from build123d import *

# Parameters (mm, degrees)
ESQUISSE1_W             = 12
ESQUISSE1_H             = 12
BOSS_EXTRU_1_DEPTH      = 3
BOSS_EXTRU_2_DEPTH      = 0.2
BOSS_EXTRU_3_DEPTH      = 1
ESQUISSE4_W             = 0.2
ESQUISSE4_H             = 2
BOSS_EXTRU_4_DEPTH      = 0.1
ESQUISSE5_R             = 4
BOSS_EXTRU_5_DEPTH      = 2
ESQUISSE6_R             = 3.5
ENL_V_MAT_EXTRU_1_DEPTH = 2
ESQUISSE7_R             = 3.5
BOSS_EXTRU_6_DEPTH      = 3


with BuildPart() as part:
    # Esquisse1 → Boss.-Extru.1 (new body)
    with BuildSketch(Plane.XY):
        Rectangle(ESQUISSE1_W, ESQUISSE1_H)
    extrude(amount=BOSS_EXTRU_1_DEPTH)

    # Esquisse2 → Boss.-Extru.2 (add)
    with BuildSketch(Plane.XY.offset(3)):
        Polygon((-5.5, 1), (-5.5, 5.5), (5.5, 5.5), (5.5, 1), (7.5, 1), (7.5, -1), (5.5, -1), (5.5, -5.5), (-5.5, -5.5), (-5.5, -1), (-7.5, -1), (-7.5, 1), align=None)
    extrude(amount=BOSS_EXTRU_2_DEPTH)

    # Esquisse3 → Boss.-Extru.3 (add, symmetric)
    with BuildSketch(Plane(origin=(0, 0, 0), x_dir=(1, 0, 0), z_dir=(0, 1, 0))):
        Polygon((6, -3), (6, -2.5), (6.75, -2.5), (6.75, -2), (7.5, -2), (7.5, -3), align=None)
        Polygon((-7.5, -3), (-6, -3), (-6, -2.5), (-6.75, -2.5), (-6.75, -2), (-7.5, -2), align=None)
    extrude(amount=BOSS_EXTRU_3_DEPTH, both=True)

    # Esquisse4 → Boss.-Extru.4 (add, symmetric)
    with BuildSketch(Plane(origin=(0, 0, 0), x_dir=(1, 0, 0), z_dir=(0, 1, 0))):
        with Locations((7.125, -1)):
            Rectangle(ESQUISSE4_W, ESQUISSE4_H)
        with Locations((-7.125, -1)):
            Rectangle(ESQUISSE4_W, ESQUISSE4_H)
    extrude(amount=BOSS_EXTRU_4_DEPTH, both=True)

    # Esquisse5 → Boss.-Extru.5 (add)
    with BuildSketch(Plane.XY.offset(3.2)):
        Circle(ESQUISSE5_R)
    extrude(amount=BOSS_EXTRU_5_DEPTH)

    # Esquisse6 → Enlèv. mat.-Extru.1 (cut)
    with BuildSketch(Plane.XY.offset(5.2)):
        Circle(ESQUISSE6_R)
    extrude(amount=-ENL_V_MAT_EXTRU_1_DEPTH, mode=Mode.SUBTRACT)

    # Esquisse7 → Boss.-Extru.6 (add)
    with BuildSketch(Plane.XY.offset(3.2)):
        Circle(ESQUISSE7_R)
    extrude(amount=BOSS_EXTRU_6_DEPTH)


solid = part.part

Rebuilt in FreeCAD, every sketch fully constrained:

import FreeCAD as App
import Part
import Sketcher
from FreeCAD import Vector
Q = App.Units.Quantity

doc = App.newDocument("Part")
params = doc.addObject("Spreadsheet::Sheet", "Params")
for row, (alias, value) in enumerate([
    ("sketch1_width", "12 mm"),
    ("pad1_length", "3 mm"),
    ("sketch2_width", "2 mm"),
    ("sketch2_width2", "11 mm"),
    ("sketch2_height", "4.5 mm"),
    ("pad2_length", "0.2 mm"),
    ("sketch3_height", "1 mm"),
    ("sketch3_width", "1.5 mm"),
    ("pad3_length", "2 mm"),
    ("sketch4_height", "2 mm"),
    ("sketch4_width", "0.2 mm"),
    ("pad4_length", "0.2 mm"),
    ("sketch5_diameter", "8 mm"),
    ("pad5_length", "2 mm"),
    ("sketch6_diameter", "7 mm"),
    ("pocket1_length", "2 mm"),
    ("sketch7_diameter", "7 mm"),
    ("pad6_length", "3 mm"),
], start=1):
    params.set(f"A{row}", alias)
    params.set(f"B{row}", "=" + value)
    params.setAlias(f"B{row}", alias)

body = doc.addObject("PartDesign::Body", "Body")

sketch1 = body.newObject("Sketcher::SketchObject", "Sketch")
sketch1.AttachmentSupport = (doc.getObject("XY_Plane"), [""])
sketch1.MapMode = "FlatFace"
sketch1.addGeometry([
    Part.LineSegment(Vector(-6, 6, 0), Vector(-6, -6, 0)),
    Part.LineSegment(Vector(-6, -6, 0), Vector(6, -6, 0)),
    Part.LineSegment(Vector(6, -6, 0), Vector(6, 6, 0)),
    Part.LineSegment(Vector(6, 6, 0), Vector(-6, 6, 0)),
], False)
sketch1.addConstraint([
    Sketcher.Constraint("Coincident", 0, 2, 1, 1),
    Sketcher.Constraint("Coincident", 1, 2, 2, 1),
    Sketcher.Constraint("Coincident", 2, 2, 3, 1),
    Sketcher.Constraint("Coincident", 3, 2, 0, 1),
    Sketcher.Constraint("Vertical", 0),
    Sketcher.Constraint("Horizontal", 1),
    Sketcher.Constraint("Vertical", 2),
    Sketcher.Constraint("Horizontal", 3),
    Sketcher.Constraint("Symmetric", 0, 2, 2, 2, -1, 1),
    Sketcher.Constraint("Equal", 3, 0),
    Sketcher.Constraint("DistanceX", 1, 1, 1, 2, Q("12 mm")),
])
sketch1.setExpression("Constraints[10]", "Params.sketch1_width")
pad1 = body.newObject("PartDesign::Pad", "Pad")
pad1.Profile = sketch1
pad1.setExpression("Length", "Params.pad1_length")

sketch2 = body.newObject("Sketcher::SketchObject", "Sketch001")
sketch2.AttachmentSupport = (doc.getObject("XY_Plane"), [""])
sketch2.MapMode = "FlatFace"
sketch2.AttachmentOffset = App.Placement(Vector(0, 0, 3), App.Rotation())
sketch2.addGeometry([
    Part.LineSegment(Vector(-5.5, 5.5, 0), Vector(-5.5, 1, 0)),
    Part.LineSegment(Vector(-5.5, 1, 0), Vector(-7.5, 1, 0)),
    Part.LineSegment(Vector(-7.5, 1, 0), Vector(-7.5, -1, 0)),
    Part.LineSegment(Vector(-7.5, -1, 0), Vector(-5.5, -1, 0)),
    Part.LineSegment(Vector(-5.5, -1, 0), Vector(-5.5, -5.5, 0)),
    Part.LineSegment(Vector(-5.5, -5.5, 0), Vector(5.5, -5.5, 0)),
    Part.LineSegment(Vector(5.5, -5.5, 0), Vector(5.5, -1, 0)),
    Part.LineSegment(Vector(5.5, -1, 0), Vector(7.5, -1, 0)),
    Part.LineSegment(Vector(7.5, -1, 0), Vector(7.5, 1, 0)),
    Part.LineSegment(Vector(7.5, 1, 0), Vector(5.5, 1, 0)),
    Part.LineSegment(Vector(5.5, 1, 0), Vector(5.5, 5.5, 0)),
    Part.LineSegment(Vector(5.5, 5.5, 0), Vector(-5.5, 5.5, 0)),
], False)
sketch2.addConstraint([
    Sketcher.Constraint("Coincident", 0, 2, 1, 1),
    Sketcher.Constraint("Coincident", 1, 2, 2, 1),
    Sketcher.Constraint("Coincident", 2, 2, 3, 1),
    Sketcher.Constraint("Coincident", 3, 2, 4, 1),
    Sketcher.Constraint("Coincident", 4, 2, 5, 1),
    Sketcher.Constraint("Coincident", 5, 2, 6, 1),
    Sketcher.Constraint("Coincident", 6, 2, 7, 1),
    Sketcher.Constraint("Coincident", 7, 2, 8, 1),
    Sketcher.Constraint("Coincident", 8, 2, 9, 1),
    Sketcher.Constraint("Coincident", 9, 2, 10, 1),
    Sketcher.Constraint("Coincident", 10, 2, 11, 1),
    Sketcher.Constraint("Coincident", 11, 2, 0, 1),
    Sketcher.Constraint("Vertical", 0),
    Sketcher.Constraint("Horizontal", 1),
    Sketcher.Constraint("Vertical", 2),
    Sketcher.Constraint("Horizontal", 3),
    Sketcher.Constraint("Vertical", 4),
    Sketcher.Constraint("Horizontal", 5),
    Sketcher.Constraint("Vertical", 6),
    Sketcher.Constraint("Horizontal", 7),
    Sketcher.Constraint("Vertical", 8),
    Sketcher.Constraint("Horizontal", 9),
    Sketcher.Constraint("Vertical", 10),
    Sketcher.Constraint("Horizontal", 11),
    Sketcher.Constraint("Symmetric", 0, 2, 6, 2, -1, 1),
    Sketcher.Constraint("Symmetric", 2, 2, 8, 2, -1, 1),
    Sketcher.Constraint("Symmetric", 4, 2, 10, 2, -1, 1),
    Sketcher.Constraint("Symmetric", 3, 2, 6, 2, -2),
    Sketcher.Constraint("Equal", 9, 2),
    Sketcher.Constraint("DistanceX", 1, 2, 1, 1, Q("2 mm")),
    Sketcher.Constraint("DistanceX", 5, 1, 5, 2, Q("11 mm")),
    Sketcher.Constraint("DistanceY", 0, 2, 0, 1, Q("4.5 mm")),
])
sketch2.setExpression("Constraints[29]", "Params.sketch2_width")
sketch2.setExpression("Constraints[30]", "Params.sketch2_width2")
sketch2.setExpression("Constraints[31]", "Params.sketch2_height")
pad2 = body.newObject("PartDesign::Pad", "Pad001")
pad2.Profile = sketch2
pad2.setExpression("Length", "Params.pad2_length")

sketch3 = body.newObject("Sketcher::SketchObject", "Sketch002")
sketch3.AttachmentSupport = (doc.getObject("XZ_Plane"), [""])
sketch3.MapMode = "FlatFace"
sketch3.addGeometry([
    Part.LineSegment(Vector(6, 2.5, 0), Vector(6, 3, 0)),
    Part.LineSegment(Vector(6, 3, 0), Vector(7.5, 3, 0)),
    Part.LineSegment(Vector(7.5, 3, 0), Vector(7.5, 2, 0)),
    Part.LineSegment(Vector(7.5, 2, 0), Vector(6.8, 2, 0)),
    Part.LineSegment(Vector(6.8, 2, 0), Vector(6.8, 2.5, 0)),
    Part.LineSegment(Vector(6.8, 2.5, 0), Vector(6, 2.5, 0)),
    Part.LineSegment(Vector(-7.5, 3, 0), Vector(-6, 3, 0)),
    Part.LineSegment(Vector(-6, 3, 0), Vector(-6, 2.5, 0)),
    Part.LineSegment(Vector(-6, 2.5, 0), Vector(-6.8, 2.5, 0)),
    Part.LineSegment(Vector(-6.8, 2.5, 0), Vector(-6.8, 2, 0)),
    Part.LineSegment(Vector(-6.8, 2, 0), Vector(-7.5, 2, 0)),
    Part.LineSegment(Vector(-7.5, 2, 0), Vector(-7.5, 3, 0)),
], False)
sketch3.addConstraint([
    Sketcher.Constraint("Coincident", 0, 2, 1, 1),
    Sketcher.Constraint("Coincident", 1, 2, 2, 1),
    Sketcher.Constraint("Coincident", 2, 2, 3, 1),
    Sketcher.Constraint("Coincident", 3, 2, 4, 1),
    Sketcher.Constraint("Coincident", 4, 2, 5, 1),
    Sketcher.Constraint("Coincident", 5, 2, 0, 1),
    Sketcher.Constraint("Coincident", 6, 2, 7, 1),
    Sketcher.Constraint("Coincident", 7, 2, 8, 1),
    Sketcher.Constraint("Coincident", 8, 2, 9, 1),
    Sketcher.Constraint("Coincident", 9, 2, 10, 1),
    Sketcher.Constraint("Coincident", 10, 2, 11, 1),
    Sketcher.Constraint("Coincident", 11, 2, 6, 1),
    Sketcher.Constraint("Vertical", 0),
    Sketcher.Constraint("Horizontal", 1),
    Sketcher.Constraint("Vertical", 2),
    Sketcher.Constraint("Horizontal", 3),
    Sketcher.Constraint("Vertical", 4),
    Sketcher.Constraint("Horizontal", 5),
    Sketcher.Constraint("Horizontal", 6),
    Sketcher.Constraint("Vertical", 7),
    Sketcher.Constraint("Horizontal", 8),
    Sketcher.Constraint("Vertical", 9),
    Sketcher.Constraint("Horizontal", 10),
    Sketcher.Constraint("Vertical", 11),
    Sketcher.Constraint("Symmetric", 0, 2, 6, 2, -2),
    Sketcher.Constraint("Symmetric", 4, 2, 8, 2, -2),
    Sketcher.Constraint("Symmetric", 2, 2, 10, 2, -2),
    Sketcher.Constraint("Equal", 3, 5),
    Sketcher.Constraint("Equal", 0, 4),
    Sketcher.Constraint("DistanceY", 2, 2, 2, 1, Q("1 mm")),
    Sketcher.Constraint("DistanceX", 1, 1, 1, 2, Q("1.5 mm")),
    Sketcher.Constraint("DistanceX", -1, 1, 0, 2, Q("6 mm")),
    Sketcher.Constraint("DistanceY", -1, 1, 0, 2, Q("3 mm")),
])
sketch3.setExpression("Constraints[29]", "Params.sketch3_height")
sketch3.setExpression("Constraints[30]", "Params.sketch3_width")
pad3 = body.newObject("PartDesign::Pad", "Pad002")
pad3.Profile = sketch3
pad3.setExpression("Length", "Params.pad3_length")
pad3.Midplane = True

sketch4 = body.newObject("Sketcher::SketchObject", "Sketch003")
sketch4.AttachmentSupport = (doc.getObject("XZ_Plane"), [""])
sketch4.MapMode = "FlatFace"
sketch4.addGeometry([
    Part.LineSegment(Vector(7.03, 0, 0), Vector(7.03, 2, 0)),
    Part.LineSegment(Vector(7.03, 2, 0), Vector(7.22, 2, 0)),
    Part.LineSegment(Vector(7.22, 2, 0), Vector(7.22, 0, 0)),
    Part.LineSegment(Vector(7.22, 0, 0), Vector(7.03, 0, 0)),
    Part.LineSegment(Vector(-7.22, 0, 0), Vector(-7.22, 2, 0)),
    Part.LineSegment(Vector(-7.22, 2, 0), Vector(-7.03, 2, 0)),
    Part.LineSegment(Vector(-7.03, 2, 0), Vector(-7.03, 0, 0)),
    Part.LineSegment(Vector(-7.03, 0, 0), Vector(-7.22, 0, 0)),
], False)
sketch4.addConstraint([
    Sketcher.Constraint("Coincident", 0, 2, 1, 1),
    Sketcher.Constraint("Coincident", 1, 2, 2, 1),
    Sketcher.Constraint("Coincident", 2, 2, 3, 1),
    Sketcher.Constraint("Coincident", 3, 2, 0, 1),
    Sketcher.Constraint("Coincident", 4, 2, 5, 1),
    Sketcher.Constraint("Coincident", 5, 2, 6, 1),
    Sketcher.Constraint("Coincident", 6, 2, 7, 1),
    Sketcher.Constraint("Coincident", 7, 2, 4, 1),
    Sketcher.Constraint("Vertical", 0),
    Sketcher.Constraint("Horizontal", 1),
    Sketcher.Constraint("Vertical", 2),
    Sketcher.Constraint("Horizontal", 3),
    Sketcher.Constraint("Vertical", 4),
    Sketcher.Constraint("Horizontal", 5),
    Sketcher.Constraint("Vertical", 6),
    Sketcher.Constraint("Horizontal", 7),
    Sketcher.Constraint("Symmetric", 3, 2, 6, 2, -1, 1),
    Sketcher.Constraint("Symmetric", 1, 2, 4, 2, -2),
    Sketcher.Constraint("PointOnObject", 2, 2, -1),
    Sketcher.Constraint("DistanceY", 0, 1, 0, 2, Q("2 mm")),
    Sketcher.Constraint("DistanceX", 1, 1, 1, 2, Q("0.2 mm")),
    Sketcher.Constraint("DistanceX", 4, 2, 0, 2, Q("14.25 mm")),
])
sketch4.setExpression("Constraints[19]", "Params.sketch4_height")
sketch4.setExpression("Constraints[20]", "Params.sketch4_width")
pad4 = body.newObject("PartDesign::Pad", "Pad003")
pad4.Profile = sketch4
pad4.setExpression("Length", "Params.pad4_length")
pad4.Midplane = True

sketch5 = body.newObject("Sketcher::SketchObject", "Sketch004")
sketch5.AttachmentSupport = (doc.getObject("XY_Plane"), [""])
sketch5.MapMode = "FlatFace"
sketch5.AttachmentOffset = App.Placement(Vector(0, 0, 3.2), App.Rotation())
sketch5.addGeometry(Part.Circle(Vector(0, 0, 0), Vector(0, 0, 1), 4), False)
sketch5.addConstraint([
    Sketcher.Constraint("Coincident", 0, 3, -1, 1),
    Sketcher.Constraint("Diameter", 0, Q("8 mm")),
])
sketch5.setExpression("Constraints[1]", "Params.sketch5_diameter")
pad5 = body.newObject("PartDesign::Pad", "Pad004")
pad5.Profile = sketch5
pad5.setExpression("Length", "Params.pad5_length")

sketch6 = body.newObject("Sketcher::SketchObject", "Sketch005")
sketch6.AttachmentSupport = (doc.getObject("XY_Plane"), [""])
sketch6.MapMode = "FlatFace"
sketch6.AttachmentOffset = App.Placement(Vector(0, 0, 5.2), App.Rotation())
sketch6.addGeometry(Part.Circle(Vector(0, 0, 0), Vector(0, 0, 1), 3.5), False)
sketch6.addConstraint([
    Sketcher.Constraint("Coincident", 0, 3, -1, 1),
    Sketcher.Constraint("Diameter", 0, Q("7 mm")),
])
sketch6.setExpression("Constraints[1]", "Params.sketch6_diameter")
pocket1 = body.newObject("PartDesign::Pocket", "Pocket")
pocket1.Profile = sketch6
pocket1.setExpression("Length", "Params.pocket1_length")

sketch7 = body.newObject("Sketcher::SketchObject", "Sketch006")
sketch7.AttachmentSupport = (doc.getObject("XY_Plane"), [""])
sketch7.MapMode = "FlatFace"
sketch7.AttachmentOffset = App.Placement(Vector(0, 0, 3.2), App.Rotation())
sketch7.addGeometry(Part.Circle(Vector(0, 0, 0), Vector(0, 0, 1), 3.5), False)
sketch7.addConstraint([
    Sketcher.Constraint("Coincident", 0, 3, -1, 1),
    Sketcher.Constraint("Diameter", 0, Q("7 mm")),
])
sketch7.setExpression("Constraints[1]", "Params.sketch7_diameter")
pad6 = body.newObject("PartDesign::Pad", "Pad005")
pad6.Profile = sketch7
pad6.setExpression("Length", "Params.pad6_length")

doc.recompute()
